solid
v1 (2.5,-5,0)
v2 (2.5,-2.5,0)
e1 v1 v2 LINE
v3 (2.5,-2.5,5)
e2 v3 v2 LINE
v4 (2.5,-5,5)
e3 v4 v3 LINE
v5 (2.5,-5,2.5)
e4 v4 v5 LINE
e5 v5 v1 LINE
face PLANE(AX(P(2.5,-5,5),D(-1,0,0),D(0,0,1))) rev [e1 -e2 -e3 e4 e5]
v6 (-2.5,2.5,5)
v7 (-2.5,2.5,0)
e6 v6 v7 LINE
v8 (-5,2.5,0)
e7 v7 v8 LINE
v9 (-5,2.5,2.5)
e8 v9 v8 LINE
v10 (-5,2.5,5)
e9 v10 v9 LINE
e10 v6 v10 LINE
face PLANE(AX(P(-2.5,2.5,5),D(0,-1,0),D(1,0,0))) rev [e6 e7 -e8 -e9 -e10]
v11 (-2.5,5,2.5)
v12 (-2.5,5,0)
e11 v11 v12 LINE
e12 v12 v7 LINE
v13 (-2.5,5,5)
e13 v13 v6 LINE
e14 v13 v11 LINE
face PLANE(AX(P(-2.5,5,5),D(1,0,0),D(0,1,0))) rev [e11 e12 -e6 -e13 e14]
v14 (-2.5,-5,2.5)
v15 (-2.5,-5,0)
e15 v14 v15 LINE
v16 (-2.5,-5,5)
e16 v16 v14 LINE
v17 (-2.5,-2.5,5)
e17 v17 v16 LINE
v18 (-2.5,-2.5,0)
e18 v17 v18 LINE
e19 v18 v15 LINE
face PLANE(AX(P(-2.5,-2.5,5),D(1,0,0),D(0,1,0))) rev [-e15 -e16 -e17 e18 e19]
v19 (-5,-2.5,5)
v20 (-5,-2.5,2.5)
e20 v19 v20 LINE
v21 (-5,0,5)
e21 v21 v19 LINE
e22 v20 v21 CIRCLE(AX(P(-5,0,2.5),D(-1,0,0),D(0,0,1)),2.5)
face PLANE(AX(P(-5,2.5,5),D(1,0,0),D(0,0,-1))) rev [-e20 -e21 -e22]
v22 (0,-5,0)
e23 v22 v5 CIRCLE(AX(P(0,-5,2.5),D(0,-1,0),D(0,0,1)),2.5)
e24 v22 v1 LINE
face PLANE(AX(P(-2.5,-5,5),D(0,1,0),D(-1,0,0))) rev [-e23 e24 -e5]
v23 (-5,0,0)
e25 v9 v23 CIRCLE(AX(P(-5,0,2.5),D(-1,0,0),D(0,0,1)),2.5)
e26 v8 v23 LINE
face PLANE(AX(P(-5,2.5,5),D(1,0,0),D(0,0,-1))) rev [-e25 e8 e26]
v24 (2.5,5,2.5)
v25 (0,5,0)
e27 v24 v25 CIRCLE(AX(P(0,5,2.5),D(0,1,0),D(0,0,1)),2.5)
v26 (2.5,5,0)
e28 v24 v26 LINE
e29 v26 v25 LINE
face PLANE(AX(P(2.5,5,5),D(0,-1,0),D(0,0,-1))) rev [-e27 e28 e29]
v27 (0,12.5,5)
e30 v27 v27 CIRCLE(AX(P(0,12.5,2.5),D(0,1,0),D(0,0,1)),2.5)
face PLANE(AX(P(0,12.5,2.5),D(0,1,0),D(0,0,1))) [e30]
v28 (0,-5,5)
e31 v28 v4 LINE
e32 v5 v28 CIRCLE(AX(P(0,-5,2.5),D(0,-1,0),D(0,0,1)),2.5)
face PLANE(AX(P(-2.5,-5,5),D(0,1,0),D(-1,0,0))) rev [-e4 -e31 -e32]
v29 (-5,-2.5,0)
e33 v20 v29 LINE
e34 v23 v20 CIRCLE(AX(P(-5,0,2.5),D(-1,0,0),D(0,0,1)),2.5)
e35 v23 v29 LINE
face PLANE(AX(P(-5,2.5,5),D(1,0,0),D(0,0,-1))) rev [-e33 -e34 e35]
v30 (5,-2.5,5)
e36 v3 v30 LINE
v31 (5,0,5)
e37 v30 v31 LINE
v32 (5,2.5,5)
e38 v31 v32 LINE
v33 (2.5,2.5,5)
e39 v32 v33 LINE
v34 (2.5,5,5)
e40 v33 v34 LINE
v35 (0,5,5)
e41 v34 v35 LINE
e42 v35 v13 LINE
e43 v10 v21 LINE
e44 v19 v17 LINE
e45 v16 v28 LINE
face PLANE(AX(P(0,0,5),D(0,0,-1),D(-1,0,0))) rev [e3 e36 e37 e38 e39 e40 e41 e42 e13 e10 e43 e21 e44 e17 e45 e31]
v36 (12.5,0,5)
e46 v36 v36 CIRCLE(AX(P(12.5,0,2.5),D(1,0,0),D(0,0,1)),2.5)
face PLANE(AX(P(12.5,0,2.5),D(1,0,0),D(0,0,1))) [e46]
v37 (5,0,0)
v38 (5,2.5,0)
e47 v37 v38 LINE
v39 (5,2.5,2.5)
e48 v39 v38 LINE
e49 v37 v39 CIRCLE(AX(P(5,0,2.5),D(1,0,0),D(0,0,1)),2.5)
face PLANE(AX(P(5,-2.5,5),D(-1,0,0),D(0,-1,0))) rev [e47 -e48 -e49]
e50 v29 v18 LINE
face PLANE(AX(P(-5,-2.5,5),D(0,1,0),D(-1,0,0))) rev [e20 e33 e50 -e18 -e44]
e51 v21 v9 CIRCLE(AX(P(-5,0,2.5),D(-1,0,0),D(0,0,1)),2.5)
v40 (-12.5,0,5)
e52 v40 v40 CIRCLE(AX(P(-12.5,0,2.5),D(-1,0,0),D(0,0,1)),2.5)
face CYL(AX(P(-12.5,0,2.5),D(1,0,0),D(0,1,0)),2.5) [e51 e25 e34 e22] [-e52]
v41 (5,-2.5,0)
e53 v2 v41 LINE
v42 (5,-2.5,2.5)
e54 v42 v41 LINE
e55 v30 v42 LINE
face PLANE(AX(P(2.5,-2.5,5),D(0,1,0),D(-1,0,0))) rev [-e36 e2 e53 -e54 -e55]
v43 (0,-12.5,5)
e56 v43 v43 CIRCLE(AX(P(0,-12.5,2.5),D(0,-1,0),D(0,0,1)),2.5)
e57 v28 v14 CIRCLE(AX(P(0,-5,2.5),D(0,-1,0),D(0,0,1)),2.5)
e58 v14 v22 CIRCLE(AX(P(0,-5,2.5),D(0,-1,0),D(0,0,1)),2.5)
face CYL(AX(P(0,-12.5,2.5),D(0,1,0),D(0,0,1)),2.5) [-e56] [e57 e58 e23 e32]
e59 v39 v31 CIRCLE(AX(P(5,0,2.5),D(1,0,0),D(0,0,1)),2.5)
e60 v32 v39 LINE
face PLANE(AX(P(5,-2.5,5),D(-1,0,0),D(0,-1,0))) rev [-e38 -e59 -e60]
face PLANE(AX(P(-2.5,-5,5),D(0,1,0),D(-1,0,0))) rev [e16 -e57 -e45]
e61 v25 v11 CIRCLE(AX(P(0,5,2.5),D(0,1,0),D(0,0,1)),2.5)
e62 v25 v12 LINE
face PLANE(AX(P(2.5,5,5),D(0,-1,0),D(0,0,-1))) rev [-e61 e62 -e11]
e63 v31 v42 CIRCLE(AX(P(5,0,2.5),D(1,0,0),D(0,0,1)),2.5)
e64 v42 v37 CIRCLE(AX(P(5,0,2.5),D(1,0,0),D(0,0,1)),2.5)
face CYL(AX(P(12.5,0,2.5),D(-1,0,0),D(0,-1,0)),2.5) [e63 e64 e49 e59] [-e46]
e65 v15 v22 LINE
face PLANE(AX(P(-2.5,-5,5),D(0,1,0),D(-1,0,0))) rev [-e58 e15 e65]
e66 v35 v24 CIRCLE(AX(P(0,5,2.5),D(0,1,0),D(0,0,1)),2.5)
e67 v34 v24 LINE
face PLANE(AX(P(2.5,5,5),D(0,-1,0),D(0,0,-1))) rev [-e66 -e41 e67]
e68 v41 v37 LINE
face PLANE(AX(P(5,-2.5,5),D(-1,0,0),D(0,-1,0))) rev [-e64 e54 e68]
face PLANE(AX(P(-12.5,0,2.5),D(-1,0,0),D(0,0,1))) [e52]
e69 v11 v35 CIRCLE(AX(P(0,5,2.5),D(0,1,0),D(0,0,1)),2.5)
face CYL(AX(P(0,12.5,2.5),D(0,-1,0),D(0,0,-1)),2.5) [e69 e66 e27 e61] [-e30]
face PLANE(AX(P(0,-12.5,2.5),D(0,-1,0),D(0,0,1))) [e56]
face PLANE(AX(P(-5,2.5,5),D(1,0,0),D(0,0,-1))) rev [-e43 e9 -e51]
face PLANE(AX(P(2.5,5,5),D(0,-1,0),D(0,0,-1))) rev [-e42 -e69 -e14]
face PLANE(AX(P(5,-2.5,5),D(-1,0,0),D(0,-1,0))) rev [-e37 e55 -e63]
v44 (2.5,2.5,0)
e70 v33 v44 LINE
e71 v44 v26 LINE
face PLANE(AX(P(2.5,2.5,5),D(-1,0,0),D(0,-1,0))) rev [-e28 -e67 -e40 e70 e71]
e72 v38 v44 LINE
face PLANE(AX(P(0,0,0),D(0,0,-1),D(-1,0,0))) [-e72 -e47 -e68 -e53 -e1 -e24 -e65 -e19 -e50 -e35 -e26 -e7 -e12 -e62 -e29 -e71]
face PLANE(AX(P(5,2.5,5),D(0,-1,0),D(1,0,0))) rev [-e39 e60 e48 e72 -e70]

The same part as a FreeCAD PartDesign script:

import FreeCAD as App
import Part
import Sketcher
from FreeCAD import Vector


def add_polygon(sketch, points):
    """Adds a closed chain of lines whose ends are joined by coincident constraints."""
    first, n = sketch.GeometryCount, len(points)
    for a, b in zip(points, points[1:] + points[:1]):
        sketch.addGeometry(Part.LineSegment(App.Vector(*a, 0), App.Vector(*b, 0)), False)
    for i in range(n):
        sketch.addConstraint(Sketcher.Constraint("Coincident", first + i, 2, first + (i + 1) % n, 1))

doc = App.newDocument("Part")
params = doc.addObject("Spreadsheet::Sheet", "Params")
for row, (alias, value) in enumerate([
    ("sketch1_width", "5 mm"),
    ("sketch1_width2", "2.5 mm"),
    ("pad1_length", "5 mm"),
    ("sketch2_diameter", "5 mm"),
    ("pad2_length", "7.5 mm"),
], start=1):
    params.set(f"A{row}", alias)
    params.set(f"B{row}", "=" + value)
    params.setAlias(f"B{row}", alias)

body = doc.addObject("PartDesign::Body", "Body")

# Sketch on XY plane
sketch1 = doc.addObject("Sketcher::SketchObject", "Sketch")
body.addObject(sketch1)
sketch1.AttachmentSupport = (doc.XY_Plane, [""])
sketch1.MapMode = "FlatFace"
add_polygon(sketch1, [(-2.5, 2.5), (-5, 2.5), (-5, -2.5), (-2.5, -2.5), (-2.5, -5), (2.5, -5), (2.5, -2.5), (5, -2.5), (5, 2.5), (2.5, 2.5), (2.5, 5), (-2.5, 5)])  # lines 0-11
sketch1.addConstraint([
    Sketcher.Constraint("Horizontal", 0),
    Sketcher.Constraint("Vertical", 1),
    Sketcher.Constraint("Horizontal", 2),
    Sketcher.Constraint("Vertical", 3),
    Sketcher.Constraint("Horizontal", 4),
    Sketcher.Constraint("Vertical", 5),
    Sketcher.Constraint("Horizontal", 6),
    Sketcher.Constraint("Vertical", 7),
    Sketcher.Constraint("Horizontal", 8),
    Sketcher.Constraint("Vertical", 9),
    Sketcher.Constraint("Horizontal", 10),
    Sketcher.Constraint("Vertical", 11),
    Sketcher.Constraint("Symmetric", 0, 2, 6, 2, -1, 1),
    Sketcher.Constraint("Symmetric", 2, 2, 8, 2, -1, 1),
    Sketcher.Constraint("Symmetric", 4, 2, 10, 2, -1, 1),
    Sketcher.Constraint("Symmetric", 2, 2, 5, 2, -2),
    Sketcher.Constraint("Equal", 10, 1),
    Sketcher.Constraint("Equal", 8, 3),
    Sketcher.Constraint("DistanceX", 4, 1, 4, 2, 5.0),
    Sketcher.Constraint("DistanceX", 0, 2, 0, 1, 2.5),
])
sketch1.setExpression("Constraints[30]", "Params.sketch1_width")
sketch1.setExpression("Constraints[31]", "Params.sketch1_width2")
pad1 = doc.addObject("PartDesign::Pad", "Pad")
body.addObject(pad1)
pad1.Profile = sketch1
pad1.setExpression("Length", "Params.pad1_length")

# Sketch on XZ plane
sketch2 = doc.addObject("Sketcher::SketchObject", "Sketch001")
body.addObject(sketch2)
sketch2.AttachmentSupport = (doc.XZ_Plane, [""])
sketch2.MapMode = "FlatFace"
sketch2.AttachmentOffset = App.Placement(Vector(0, 0, -5), App.Rotation())
sketch2.addGeometry(Part.Circle(Vector(0, 2.5, 0), Vector(0, 0, 1), 2.5), False)
sketch2.addConstraint([
    Sketcher.Constraint("PointOnObject", 0, 3, -2),
    Sketcher.Constraint("Diameter", 0, 5.0),
    Sketcher.Constraint("DistanceY", -1, 1, 0, 3, 2.5),
])
sketch2.setExpression("Constraints[1]", "Params.sketch2_diameter")
pad2 = doc.addObject("PartDesign::Pad", "Pad001")
body.addObject(pad2)
pad2.Profile = sketch2
pad2.setExpression("Length", "Params.pad2_length")
pad2.Reversed = True
doc.recompute()

polarpattern = doc.addObject("PartDesign::PolarPattern", "PolarPattern")
body.addObject(polarpattern)
polarpattern.Originals = [pad2]
polarpattern.Axis = (doc.Z_Axis, [""])
polarpattern.Angle = 360
polarpattern.Occurrences = 4
body.Tip = polarpattern

doc.recompute()
